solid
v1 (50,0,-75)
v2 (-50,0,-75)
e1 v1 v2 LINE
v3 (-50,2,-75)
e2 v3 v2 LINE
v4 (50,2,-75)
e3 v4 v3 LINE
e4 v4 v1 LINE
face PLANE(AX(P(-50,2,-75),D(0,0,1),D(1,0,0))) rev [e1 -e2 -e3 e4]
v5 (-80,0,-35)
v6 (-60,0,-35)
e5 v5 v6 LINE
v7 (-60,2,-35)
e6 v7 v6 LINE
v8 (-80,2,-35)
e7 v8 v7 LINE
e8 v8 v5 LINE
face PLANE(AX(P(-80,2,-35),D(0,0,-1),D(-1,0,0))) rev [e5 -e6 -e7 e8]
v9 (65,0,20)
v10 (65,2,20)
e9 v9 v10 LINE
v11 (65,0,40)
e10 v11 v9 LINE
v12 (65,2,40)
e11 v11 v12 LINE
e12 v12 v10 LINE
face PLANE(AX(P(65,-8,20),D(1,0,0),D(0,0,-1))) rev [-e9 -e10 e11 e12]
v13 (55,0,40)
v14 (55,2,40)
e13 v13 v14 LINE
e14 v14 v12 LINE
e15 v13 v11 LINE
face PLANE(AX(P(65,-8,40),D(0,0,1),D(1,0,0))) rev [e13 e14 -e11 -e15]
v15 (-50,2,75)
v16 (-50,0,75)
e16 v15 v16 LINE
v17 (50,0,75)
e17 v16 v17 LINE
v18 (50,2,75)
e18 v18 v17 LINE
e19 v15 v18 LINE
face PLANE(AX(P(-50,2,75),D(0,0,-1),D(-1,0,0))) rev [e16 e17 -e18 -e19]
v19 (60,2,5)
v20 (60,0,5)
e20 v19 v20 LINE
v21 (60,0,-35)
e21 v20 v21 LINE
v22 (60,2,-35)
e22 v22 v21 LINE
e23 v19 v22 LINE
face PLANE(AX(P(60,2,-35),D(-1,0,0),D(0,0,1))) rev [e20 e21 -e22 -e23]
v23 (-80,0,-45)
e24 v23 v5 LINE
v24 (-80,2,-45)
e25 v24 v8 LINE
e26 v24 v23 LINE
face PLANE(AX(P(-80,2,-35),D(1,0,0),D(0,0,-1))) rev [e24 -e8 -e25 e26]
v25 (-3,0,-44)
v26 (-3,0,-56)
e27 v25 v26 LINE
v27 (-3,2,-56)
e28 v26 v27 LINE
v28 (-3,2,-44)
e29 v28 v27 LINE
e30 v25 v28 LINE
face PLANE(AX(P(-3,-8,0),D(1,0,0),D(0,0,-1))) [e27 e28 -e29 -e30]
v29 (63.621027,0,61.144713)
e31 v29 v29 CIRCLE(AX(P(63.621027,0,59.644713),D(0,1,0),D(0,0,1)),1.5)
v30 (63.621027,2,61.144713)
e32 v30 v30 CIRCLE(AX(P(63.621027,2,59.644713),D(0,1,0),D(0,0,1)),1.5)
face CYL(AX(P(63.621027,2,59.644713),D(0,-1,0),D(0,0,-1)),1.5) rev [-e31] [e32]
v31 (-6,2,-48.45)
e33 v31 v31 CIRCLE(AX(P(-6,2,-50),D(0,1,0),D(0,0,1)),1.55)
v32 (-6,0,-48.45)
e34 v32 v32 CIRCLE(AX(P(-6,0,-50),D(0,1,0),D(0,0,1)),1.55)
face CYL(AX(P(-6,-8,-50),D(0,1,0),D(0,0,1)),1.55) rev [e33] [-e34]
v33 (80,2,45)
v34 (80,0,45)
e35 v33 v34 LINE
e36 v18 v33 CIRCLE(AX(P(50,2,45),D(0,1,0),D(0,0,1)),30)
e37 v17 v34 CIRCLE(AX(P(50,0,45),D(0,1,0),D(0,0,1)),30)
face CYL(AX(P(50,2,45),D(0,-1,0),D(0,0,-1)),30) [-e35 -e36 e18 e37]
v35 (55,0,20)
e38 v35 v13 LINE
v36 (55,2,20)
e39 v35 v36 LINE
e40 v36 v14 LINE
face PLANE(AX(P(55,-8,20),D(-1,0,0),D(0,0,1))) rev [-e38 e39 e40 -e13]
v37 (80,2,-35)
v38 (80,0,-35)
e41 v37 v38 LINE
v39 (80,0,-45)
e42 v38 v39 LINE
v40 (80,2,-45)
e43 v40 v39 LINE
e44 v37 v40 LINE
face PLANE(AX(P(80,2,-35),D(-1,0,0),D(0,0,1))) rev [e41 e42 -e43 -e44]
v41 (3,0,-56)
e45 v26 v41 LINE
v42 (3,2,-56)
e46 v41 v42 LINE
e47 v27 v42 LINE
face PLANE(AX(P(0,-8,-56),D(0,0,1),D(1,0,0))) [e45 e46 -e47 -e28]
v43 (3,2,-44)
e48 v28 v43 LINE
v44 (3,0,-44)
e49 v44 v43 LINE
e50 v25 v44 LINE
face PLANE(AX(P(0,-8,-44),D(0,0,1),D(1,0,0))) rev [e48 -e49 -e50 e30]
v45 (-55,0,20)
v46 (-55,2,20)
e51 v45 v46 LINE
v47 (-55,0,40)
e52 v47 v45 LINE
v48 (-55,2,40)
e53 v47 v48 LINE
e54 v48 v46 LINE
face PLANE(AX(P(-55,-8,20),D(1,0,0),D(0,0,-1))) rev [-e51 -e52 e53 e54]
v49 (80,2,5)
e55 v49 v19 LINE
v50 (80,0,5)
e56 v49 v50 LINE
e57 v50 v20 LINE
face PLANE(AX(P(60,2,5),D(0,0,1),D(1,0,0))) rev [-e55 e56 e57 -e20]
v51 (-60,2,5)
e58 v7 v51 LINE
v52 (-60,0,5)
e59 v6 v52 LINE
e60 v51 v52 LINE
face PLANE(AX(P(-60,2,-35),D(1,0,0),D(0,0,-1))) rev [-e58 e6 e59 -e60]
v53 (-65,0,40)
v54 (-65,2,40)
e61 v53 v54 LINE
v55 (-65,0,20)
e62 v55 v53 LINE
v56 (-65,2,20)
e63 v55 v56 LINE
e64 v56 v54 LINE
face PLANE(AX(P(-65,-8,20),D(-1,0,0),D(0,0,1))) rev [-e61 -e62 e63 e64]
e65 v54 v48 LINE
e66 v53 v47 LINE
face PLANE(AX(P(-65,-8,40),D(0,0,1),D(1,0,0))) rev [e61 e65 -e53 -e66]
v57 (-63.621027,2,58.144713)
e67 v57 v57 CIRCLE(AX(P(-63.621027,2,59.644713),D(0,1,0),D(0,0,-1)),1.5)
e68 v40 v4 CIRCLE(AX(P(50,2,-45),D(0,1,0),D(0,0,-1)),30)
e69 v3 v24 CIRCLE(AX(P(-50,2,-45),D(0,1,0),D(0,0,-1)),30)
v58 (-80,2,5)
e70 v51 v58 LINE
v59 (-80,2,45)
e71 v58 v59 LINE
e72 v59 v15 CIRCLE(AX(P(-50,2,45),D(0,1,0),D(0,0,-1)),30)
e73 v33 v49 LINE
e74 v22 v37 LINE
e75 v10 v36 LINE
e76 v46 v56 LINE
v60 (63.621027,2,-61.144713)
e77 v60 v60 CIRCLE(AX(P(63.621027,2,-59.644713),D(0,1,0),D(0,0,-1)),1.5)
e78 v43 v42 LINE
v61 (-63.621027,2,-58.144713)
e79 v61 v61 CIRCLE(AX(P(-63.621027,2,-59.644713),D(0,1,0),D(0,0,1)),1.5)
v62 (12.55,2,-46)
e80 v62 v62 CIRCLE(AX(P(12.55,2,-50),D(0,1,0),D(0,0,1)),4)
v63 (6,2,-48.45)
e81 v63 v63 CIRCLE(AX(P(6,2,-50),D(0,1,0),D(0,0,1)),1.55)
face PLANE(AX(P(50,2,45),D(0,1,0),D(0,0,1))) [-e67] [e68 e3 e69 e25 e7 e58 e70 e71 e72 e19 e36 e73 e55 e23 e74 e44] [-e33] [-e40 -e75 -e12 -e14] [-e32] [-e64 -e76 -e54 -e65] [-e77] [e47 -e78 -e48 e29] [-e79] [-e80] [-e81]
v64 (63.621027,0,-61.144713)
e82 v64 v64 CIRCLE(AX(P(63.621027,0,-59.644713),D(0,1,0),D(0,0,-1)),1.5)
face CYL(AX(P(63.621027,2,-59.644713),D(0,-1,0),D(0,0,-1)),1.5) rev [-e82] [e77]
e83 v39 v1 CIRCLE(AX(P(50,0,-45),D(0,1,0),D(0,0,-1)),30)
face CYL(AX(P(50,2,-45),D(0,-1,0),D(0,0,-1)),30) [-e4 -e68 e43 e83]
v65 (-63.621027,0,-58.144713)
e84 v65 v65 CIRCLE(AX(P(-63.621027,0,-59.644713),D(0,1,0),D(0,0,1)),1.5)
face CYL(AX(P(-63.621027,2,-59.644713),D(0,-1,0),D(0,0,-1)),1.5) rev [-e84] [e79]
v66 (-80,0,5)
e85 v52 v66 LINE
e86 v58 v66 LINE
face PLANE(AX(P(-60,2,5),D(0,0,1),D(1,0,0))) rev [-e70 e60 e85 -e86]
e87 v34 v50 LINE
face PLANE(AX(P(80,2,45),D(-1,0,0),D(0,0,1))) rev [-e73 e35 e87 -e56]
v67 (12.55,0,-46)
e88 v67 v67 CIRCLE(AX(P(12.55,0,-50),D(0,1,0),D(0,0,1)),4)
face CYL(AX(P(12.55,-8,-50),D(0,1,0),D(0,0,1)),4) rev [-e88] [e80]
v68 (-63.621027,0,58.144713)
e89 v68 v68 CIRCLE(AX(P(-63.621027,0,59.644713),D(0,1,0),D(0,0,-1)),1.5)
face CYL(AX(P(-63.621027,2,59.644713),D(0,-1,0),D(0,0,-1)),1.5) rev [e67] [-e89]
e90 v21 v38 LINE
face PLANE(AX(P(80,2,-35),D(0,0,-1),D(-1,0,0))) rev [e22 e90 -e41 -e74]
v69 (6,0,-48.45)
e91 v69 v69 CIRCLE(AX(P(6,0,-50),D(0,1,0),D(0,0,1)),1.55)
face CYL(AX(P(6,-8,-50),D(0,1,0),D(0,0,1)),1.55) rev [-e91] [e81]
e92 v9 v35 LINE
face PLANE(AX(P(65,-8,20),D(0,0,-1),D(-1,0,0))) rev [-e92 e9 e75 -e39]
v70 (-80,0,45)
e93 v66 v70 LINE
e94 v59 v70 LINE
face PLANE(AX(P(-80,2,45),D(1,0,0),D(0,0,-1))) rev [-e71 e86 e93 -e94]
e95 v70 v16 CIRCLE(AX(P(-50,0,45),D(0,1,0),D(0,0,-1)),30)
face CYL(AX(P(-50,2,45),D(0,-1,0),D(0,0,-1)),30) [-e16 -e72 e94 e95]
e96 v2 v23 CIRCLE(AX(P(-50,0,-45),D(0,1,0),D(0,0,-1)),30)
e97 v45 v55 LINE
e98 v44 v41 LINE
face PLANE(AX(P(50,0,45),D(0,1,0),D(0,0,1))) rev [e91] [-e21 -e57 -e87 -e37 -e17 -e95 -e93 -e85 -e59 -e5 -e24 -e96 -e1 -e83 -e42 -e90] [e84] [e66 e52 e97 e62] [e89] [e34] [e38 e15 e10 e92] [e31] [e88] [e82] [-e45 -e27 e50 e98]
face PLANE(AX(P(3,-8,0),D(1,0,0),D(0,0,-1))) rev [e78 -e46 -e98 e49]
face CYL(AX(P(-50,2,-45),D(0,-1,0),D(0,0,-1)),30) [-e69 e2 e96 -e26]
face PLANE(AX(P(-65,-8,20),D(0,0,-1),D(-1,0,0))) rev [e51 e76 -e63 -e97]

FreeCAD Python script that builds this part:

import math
import FreeCAD as App
import Part
import Sketcher
Q = App.Units.Quantity


def add_polygon(sketch, points):
    """Adds a closed chain of lines whose ends are joined by coincident constraints."""
    first, n = sketch.GeometryCount, len(points)
    for a, b in zip(points, points[1:] + points[:1]):
        sketch.addGeometry(Part.LineSegment(App.Vector(*a, 0), App.Vector(*b, 0)), False)
    for i in range(n):
        sketch.addConstraint(Sketcher.Constraint("Coincident", first + i, 2, first + (i + 1) % n, 1))

doc = App.newDocument("Part")
params = doc.addObject("Spreadsheet::Sheet", "Params")
for row, (alias, value) in enumerate([
    ("sketch1_diameter", "3 mm"),
    ("sketch1_radius", "30 mm"),
    ("sketch1_width", "20 mm"),
    ("sketch1_width2", "100 mm"),
    ("sketch1_height", "40 mm"),
    ("pad1_length", "2 mm"),
    ("sketch2_diameter", "8 mm"),
    ("sketch2_diameter2", "3.1 mm"),
    ("sketch2_width", "6 mm"),
    ("sketch2_height", "12 mm"),
    ("pocket1_length", "10 mm"),
    ("sketch3_width", "10 mm"),
    ("sketch3_height", "20 mm"),
    ("pocket2_length", "10 mm"),
], start=1):
    params.set(f"A{row}", alias)
    params.set(f"B{row}", "=" + value)
    params.setAlias(f"B{row}", alias)

body = doc.addObject("PartDesign::Body", "Body")

sketch1 = doc.addObject("Sketcher::SketchObject", "Sketch")
body.addObject(sketch1)
sketch1.AttachmentSupport = (doc.XZ_Plane, [""])
sketch1.MapMode = "FlatFace"
sketch1.addGeometry([
    Part.LineSegment(App.Vector(-80, -35, 0), App.Vector(-60, -35, 0)),
    Part.LineSegment(App.Vector(-60, -35, 0), App.Vector(-60, 5, 0)),
    Part.LineSegment(App.Vector(-60, 5, 0), App.Vector(-80, 5, 0)),
    Part.LineSegment(App.Vector(-80, 5, 0), App.Vector(-80, 45, 0)),
    Part.ArcOfCircle(Part.Circle(App.Vector(-50, 45, 0), App.Vector(0, 0, 1), 30), math.radians(90), math.radians(180)),
    Part.LineSegment(App.Vector(-50, 75, 0), App.Vector(50, 75, 0)),
    Part.ArcOfCircle(Part.Circle(App.Vector(50, 45, 0), App.Vector(0, 0, 1), 30), math.radians(0), math.radians(90)),
    Part.LineSegment(App.Vector(80, 45, 0), App.Vector(80, 5, 0)),
    Part.LineSegment(App.Vector(80, 5, 0), App.Vector(60, 5, 0)),
    Part.LineSegment(App.Vector(60, 5, 0), App.Vector(60, -35, 0)),
    Part.LineSegment(App.Vector(60, -35, 0), App.Vector(80, -35, 0)),
    Part.LineSegment(App.Vector(80, -35, 0), App.Vector(80, -45, 0)),
    Part.ArcOfCircle(Part.Circle(App.Vector(50, -45, 0), App.Vector(0, 0, 1), 30), math.radians(-90), math.radians(0)),
    Part.LineSegment(App.Vector(50, -75, 0), App.Vector(-50, -75, 0)),
    Part.ArcOfCircle(Part.Circle(App.Vector(-50, -45, 0), App.Vector(0, 0, 1), 30), math.radians(180), math.radians(270)),
    Part.LineSegment(App.Vector(-80, -45, 0), App.Vector(-80, -35, 0)),
    Part.Circle(App.Vector(-63.6, 59.6, 0), App.Vector(0, 0, 1), 1.5),
    Part.Circle(App.Vector(63.6, 59.6, 0), App.Vector(0, 0, 1), 1.5),
    Part.Circle(App.Vector(-63.6, -59.6, 0), App.Vector(0, 0, 1), 1.5),
    Part.Circle(App.Vector(63.6, -59.6, 0), App.Vector(0, 0, 1), 1.5),
], False)
sketch1.addConstraint([
    Sketcher.Constraint("Coincident", 0, 2, 1, 1),
    Sketcher.Constraint("Coincident", 1, 2, 2, 1),
    Sketcher.Constraint("Coincident", 2, 2, 3, 1),
    Sketcher.Constraint("Tangent", 3, 2, 4, 2),
    Sketcher.Constraint("Tangent", 4, 1, 5, 1),
    Sketcher.Constraint("Tangent", 5, 2, 6, 2),
    Sketcher.Constraint("Tangent", 6, 1, 7, 1),
    Sketcher.Constraint("Coincident", 7, 2, 8, 1),
    Sketcher.Constraint("Coincident", 8, 2, 9, 1),
    Sketcher.Constraint("Coincident", 9, 2, 10, 1),
    Sketcher.Constraint("Coincident", 10, 2, 11, 1),
    Sketcher.Constraint("Tangent", 11, 2, 12, 2),
    Sketcher.Constraint("Tangent", 12, 1, 13, 1),
    Sketcher.Constraint("Tangent", 13, 2, 14, 2),
    Sketcher.Constraint("Tangent", 14, 1, 15, 1),
    Sketcher.Constraint("Coincident", 15, 2, 0, 1),
    Sketcher.Constraint("Horizontal", 0),
    Sketcher.Constraint("Vertical", 1),
    Sketcher.Constraint("Horizontal", 2),
    Sketcher.Constraint("Vertical", 3),
    Sketcher.Constraint("Horizontal", 5),
    Sketcher.Constraint("Vertical", 7),
    Sketcher.Constraint("Horizontal", 8),
    Sketcher.Constraint("Vertical", 9),
    Sketcher.Constraint("Horizontal", 10),
    Sketcher.Constraint("Vertical", 11),
    Sketcher.Constraint("Horizontal", 13),
    Sketcher.Constraint("Vertical", 15),
    Sketcher.Constraint("Equal", 4, 6),
    Sketcher.Constraint("Equal", 6, 12),
    Sketcher.Constraint("Equal", 12, 14),
    Sketcher.Constraint("Equal", 16, 17),
    Sketcher.Constraint("Equal", 17, 18),
    Sketcher.Constraint("Equal", 18, 19),
    Sketcher.Constraint("Symmetric", 4, 3, 12, 3, -1, 1),
    Sketcher.Constraint("Symmetric", 17, 3, 18, 3, -1, 1),
    Sketcher.Constraint("Symmetric", 16, 3, 19, 3, -1, 1),
    Sketcher.Constraint("Symmetric", 16, 3, 17, 3, -2),
    Sketcher.Constraint("Symmetric", 2, 2, 7, 2, -2),
    Sketcher.Constraint("Symmetric", 0, 2, 9, 2, -2),
    Sketcher.Constraint("Vertical", 4, 3, 14, 3),
    Sketcher.Constraint("Equal", 1, 3),
    Sketcher.Constraint("Diameter", 16, Q("3 mm")),
    Sketcher.Constraint("Radius", 4, Q("30 mm")),
    Sketcher.Constraint("DistanceX", 0, 1, 0, 2, Q("20 mm")),
    Sketcher.Constraint("DistanceX", 5, 1, 5, 2, Q("100 mm")),
    Sketcher.Constraint("DistanceY", 1, 1, 1, 2, Q("40 mm")),
    Sketcher.Constraint("DistanceY", 11, 2, 11, 1, Q("10 mm")),
    Sketcher.Constraint("DistanceX", 16, 3, -1, 1, Q("63.621027 mm")),
    Sketcher.Constraint("DistanceY", -1, 1, 16, 3, Q("59.644713 mm")),
])
sketch1.setExpression("Constraints[42]", "Params.sketch1_diameter")
sketch1.setExpression("Constraints[43]", "Params.sketch1_radius")
sketch1.setExpression("Constraints[44]", "Params.sketch1_width")
sketch1.setExpression("Constraints[45]", "Params.sketch1_width2")
sketch1.setExpression("Constraints[46]", "Params.sketch1_height")
pad1 = doc.addObject("PartDesign::Pad", "Pad")
body.addObject(pad1)
pad1.Profile = sketch1
pad1.setExpression("Length", "Params.pad1_length")
pad1.Reversed = True

sketch2 = doc.addObject("Sketcher::SketchObject", "Sketch001")
body.addObject(sketch2)
sketch2.AttachmentSupport = (doc.XZ_Plane, [""])
sketch2.MapMode = "FlatFace"
sketch2.AttachmentOffset = App.Placement(App.Vector(0, 0, -2), App.Rotation())
sketch2.addGeometry(Part.Circle(App.Vector(-6, -50, 0), App.Vector(0, 0, 1), 1.6), False)
sketch2.addGeometry(Part.Circle(App.Vector(6, -50, 0), App.Vector(0, 0, 1), 1.6), False)
sketch2.addGeometry(Part.Circle(App.Vector(12.6, -50, 0), App.Vector(0, 0, 1), 4), False)
add_polygon(sketch2, [(-3, -56), (-3, -44), (3, -44), (3, -56)])
sketch2.addConstraint([
    Sketcher.Constraint("Vertical", 3),
    Sketcher.Constraint("Horizontal", 4),
    Sketcher.Constraint("Vertical", 5),
    Sketcher.Constraint("Horizontal", 6),
    Sketcher.Constraint("Equal", 0, 1),
    Sketcher.Constraint("Symmetric", 0, 3, 1, 3, -2),
    Sketcher.Constraint("Horizontal", 1, 3, 2, 3),
    Sketcher.Constraint("Diameter", 2, Q("8 mm")),
    Sketcher.Constraint("Diameter", 0, Q("3.1 mm")),
    Sketcher.Constraint("DistanceX", 4, 1, 4, 2, Q("6 mm")),
    Sketcher.Constraint("DistanceY", 3, 1, 3, 2, Q("12 mm")),
    Sketcher.Constraint("DistanceX", 0, 3, -1, 1, Q("6 mm")),
    Sketcher.Constraint("DistanceY", 0, 3, -1, 1, Q("50 mm")),
    Sketcher.Constraint("DistanceX", 3, 2, -1, 1, Q("3 mm")),
    Sketcher.Constraint("DistanceY", 3, 2, -1, 1, Q("44 mm")),
    Sketcher.Constraint("DistanceX", -1, 1, 2, 3, Q("12.55 mm")),
])
sketch2.setExpression("Constraints[11]", "Params.sketch2_diameter")
sketch2.setExpression("Constraints[12]", "Params.sketch2_diameter2")
sketch2.setExpression("Constraints[13]", "Params.sketch2_width")
sketch2.setExpression("Constraints[14]", "Params.sketch2_height")
pocket1 = doc.addObject("PartDesign::Pocket", "Pocket")
body.addObject(pocket1)
pocket1.Profile = sketch2
pocket1.setExpression("Length", "Params.pocket1_length")
pocket1.Reversed = True

sketch3 = doc.addObject("Sketcher::SketchObject", "Sketch002")
body.addObject(sketch3)
sketch3.AttachmentSupport = (doc.XZ_Plane, [""])
sketch3.MapMode = "FlatFace"
sketch3.AttachmentOffset = App.Placement(App.Vector(0, 0, -2), App.Rotation())
add_polygon(sketch3, [(-65, 20), (-65, 40), (-55, 40), (-55, 20)])
add_polygon(sketch3, [(55, 20), (55, 40), (65, 40), (65, 20)])
sketch3.addConstraint([
    Sketcher.Constraint("Vertical", 0),
    Sketcher.Constraint("Horizontal", 1),
    Sketcher.Constraint("Vertical", 2),
    Sketcher.Constraint("Horizontal", 3),
    Sketcher.Constraint("Vertical", 4),
    Sketcher.Constraint("Horizontal", 5),
    Sketcher.Constraint("Vertical", 6),
    Sketcher.Constraint("Horizontal", 7),
    Sketcher.Constraint("Symmetric", 1, 2, 4, 2, -2),
    Sketcher.Constraint("Symmetric", 3, 2, 6, 2, -2),
    Sketcher.Constraint("DistanceX", 1, 1, 1, 2, Q("10 mm")),
    Sketcher.Constraint("DistanceY", 0, 1, 0, 2, Q("20 mm")),
    Sketcher.Constraint("DistanceX", 0, 2, -1, 1, Q("65 mm")),
    Sketcher.Constraint("DistanceY", -1, 1, 0, 2, Q("40 mm")),
])
sketch3.setExpression("Constraints[18]", "Params.sketch3_width")
sketch3.setExpression("Constraints[19]", "Params.sketch3_height")
pocket2 = doc.addObject("PartDesign::Pocket", "Pocket001")
body.addObject(pocket2)
pocket2.Profile = sketch3
pocket2.setExpression("Length", "Params.pocket2_length")
pocket2.Reversed = True

doc.recompute()
